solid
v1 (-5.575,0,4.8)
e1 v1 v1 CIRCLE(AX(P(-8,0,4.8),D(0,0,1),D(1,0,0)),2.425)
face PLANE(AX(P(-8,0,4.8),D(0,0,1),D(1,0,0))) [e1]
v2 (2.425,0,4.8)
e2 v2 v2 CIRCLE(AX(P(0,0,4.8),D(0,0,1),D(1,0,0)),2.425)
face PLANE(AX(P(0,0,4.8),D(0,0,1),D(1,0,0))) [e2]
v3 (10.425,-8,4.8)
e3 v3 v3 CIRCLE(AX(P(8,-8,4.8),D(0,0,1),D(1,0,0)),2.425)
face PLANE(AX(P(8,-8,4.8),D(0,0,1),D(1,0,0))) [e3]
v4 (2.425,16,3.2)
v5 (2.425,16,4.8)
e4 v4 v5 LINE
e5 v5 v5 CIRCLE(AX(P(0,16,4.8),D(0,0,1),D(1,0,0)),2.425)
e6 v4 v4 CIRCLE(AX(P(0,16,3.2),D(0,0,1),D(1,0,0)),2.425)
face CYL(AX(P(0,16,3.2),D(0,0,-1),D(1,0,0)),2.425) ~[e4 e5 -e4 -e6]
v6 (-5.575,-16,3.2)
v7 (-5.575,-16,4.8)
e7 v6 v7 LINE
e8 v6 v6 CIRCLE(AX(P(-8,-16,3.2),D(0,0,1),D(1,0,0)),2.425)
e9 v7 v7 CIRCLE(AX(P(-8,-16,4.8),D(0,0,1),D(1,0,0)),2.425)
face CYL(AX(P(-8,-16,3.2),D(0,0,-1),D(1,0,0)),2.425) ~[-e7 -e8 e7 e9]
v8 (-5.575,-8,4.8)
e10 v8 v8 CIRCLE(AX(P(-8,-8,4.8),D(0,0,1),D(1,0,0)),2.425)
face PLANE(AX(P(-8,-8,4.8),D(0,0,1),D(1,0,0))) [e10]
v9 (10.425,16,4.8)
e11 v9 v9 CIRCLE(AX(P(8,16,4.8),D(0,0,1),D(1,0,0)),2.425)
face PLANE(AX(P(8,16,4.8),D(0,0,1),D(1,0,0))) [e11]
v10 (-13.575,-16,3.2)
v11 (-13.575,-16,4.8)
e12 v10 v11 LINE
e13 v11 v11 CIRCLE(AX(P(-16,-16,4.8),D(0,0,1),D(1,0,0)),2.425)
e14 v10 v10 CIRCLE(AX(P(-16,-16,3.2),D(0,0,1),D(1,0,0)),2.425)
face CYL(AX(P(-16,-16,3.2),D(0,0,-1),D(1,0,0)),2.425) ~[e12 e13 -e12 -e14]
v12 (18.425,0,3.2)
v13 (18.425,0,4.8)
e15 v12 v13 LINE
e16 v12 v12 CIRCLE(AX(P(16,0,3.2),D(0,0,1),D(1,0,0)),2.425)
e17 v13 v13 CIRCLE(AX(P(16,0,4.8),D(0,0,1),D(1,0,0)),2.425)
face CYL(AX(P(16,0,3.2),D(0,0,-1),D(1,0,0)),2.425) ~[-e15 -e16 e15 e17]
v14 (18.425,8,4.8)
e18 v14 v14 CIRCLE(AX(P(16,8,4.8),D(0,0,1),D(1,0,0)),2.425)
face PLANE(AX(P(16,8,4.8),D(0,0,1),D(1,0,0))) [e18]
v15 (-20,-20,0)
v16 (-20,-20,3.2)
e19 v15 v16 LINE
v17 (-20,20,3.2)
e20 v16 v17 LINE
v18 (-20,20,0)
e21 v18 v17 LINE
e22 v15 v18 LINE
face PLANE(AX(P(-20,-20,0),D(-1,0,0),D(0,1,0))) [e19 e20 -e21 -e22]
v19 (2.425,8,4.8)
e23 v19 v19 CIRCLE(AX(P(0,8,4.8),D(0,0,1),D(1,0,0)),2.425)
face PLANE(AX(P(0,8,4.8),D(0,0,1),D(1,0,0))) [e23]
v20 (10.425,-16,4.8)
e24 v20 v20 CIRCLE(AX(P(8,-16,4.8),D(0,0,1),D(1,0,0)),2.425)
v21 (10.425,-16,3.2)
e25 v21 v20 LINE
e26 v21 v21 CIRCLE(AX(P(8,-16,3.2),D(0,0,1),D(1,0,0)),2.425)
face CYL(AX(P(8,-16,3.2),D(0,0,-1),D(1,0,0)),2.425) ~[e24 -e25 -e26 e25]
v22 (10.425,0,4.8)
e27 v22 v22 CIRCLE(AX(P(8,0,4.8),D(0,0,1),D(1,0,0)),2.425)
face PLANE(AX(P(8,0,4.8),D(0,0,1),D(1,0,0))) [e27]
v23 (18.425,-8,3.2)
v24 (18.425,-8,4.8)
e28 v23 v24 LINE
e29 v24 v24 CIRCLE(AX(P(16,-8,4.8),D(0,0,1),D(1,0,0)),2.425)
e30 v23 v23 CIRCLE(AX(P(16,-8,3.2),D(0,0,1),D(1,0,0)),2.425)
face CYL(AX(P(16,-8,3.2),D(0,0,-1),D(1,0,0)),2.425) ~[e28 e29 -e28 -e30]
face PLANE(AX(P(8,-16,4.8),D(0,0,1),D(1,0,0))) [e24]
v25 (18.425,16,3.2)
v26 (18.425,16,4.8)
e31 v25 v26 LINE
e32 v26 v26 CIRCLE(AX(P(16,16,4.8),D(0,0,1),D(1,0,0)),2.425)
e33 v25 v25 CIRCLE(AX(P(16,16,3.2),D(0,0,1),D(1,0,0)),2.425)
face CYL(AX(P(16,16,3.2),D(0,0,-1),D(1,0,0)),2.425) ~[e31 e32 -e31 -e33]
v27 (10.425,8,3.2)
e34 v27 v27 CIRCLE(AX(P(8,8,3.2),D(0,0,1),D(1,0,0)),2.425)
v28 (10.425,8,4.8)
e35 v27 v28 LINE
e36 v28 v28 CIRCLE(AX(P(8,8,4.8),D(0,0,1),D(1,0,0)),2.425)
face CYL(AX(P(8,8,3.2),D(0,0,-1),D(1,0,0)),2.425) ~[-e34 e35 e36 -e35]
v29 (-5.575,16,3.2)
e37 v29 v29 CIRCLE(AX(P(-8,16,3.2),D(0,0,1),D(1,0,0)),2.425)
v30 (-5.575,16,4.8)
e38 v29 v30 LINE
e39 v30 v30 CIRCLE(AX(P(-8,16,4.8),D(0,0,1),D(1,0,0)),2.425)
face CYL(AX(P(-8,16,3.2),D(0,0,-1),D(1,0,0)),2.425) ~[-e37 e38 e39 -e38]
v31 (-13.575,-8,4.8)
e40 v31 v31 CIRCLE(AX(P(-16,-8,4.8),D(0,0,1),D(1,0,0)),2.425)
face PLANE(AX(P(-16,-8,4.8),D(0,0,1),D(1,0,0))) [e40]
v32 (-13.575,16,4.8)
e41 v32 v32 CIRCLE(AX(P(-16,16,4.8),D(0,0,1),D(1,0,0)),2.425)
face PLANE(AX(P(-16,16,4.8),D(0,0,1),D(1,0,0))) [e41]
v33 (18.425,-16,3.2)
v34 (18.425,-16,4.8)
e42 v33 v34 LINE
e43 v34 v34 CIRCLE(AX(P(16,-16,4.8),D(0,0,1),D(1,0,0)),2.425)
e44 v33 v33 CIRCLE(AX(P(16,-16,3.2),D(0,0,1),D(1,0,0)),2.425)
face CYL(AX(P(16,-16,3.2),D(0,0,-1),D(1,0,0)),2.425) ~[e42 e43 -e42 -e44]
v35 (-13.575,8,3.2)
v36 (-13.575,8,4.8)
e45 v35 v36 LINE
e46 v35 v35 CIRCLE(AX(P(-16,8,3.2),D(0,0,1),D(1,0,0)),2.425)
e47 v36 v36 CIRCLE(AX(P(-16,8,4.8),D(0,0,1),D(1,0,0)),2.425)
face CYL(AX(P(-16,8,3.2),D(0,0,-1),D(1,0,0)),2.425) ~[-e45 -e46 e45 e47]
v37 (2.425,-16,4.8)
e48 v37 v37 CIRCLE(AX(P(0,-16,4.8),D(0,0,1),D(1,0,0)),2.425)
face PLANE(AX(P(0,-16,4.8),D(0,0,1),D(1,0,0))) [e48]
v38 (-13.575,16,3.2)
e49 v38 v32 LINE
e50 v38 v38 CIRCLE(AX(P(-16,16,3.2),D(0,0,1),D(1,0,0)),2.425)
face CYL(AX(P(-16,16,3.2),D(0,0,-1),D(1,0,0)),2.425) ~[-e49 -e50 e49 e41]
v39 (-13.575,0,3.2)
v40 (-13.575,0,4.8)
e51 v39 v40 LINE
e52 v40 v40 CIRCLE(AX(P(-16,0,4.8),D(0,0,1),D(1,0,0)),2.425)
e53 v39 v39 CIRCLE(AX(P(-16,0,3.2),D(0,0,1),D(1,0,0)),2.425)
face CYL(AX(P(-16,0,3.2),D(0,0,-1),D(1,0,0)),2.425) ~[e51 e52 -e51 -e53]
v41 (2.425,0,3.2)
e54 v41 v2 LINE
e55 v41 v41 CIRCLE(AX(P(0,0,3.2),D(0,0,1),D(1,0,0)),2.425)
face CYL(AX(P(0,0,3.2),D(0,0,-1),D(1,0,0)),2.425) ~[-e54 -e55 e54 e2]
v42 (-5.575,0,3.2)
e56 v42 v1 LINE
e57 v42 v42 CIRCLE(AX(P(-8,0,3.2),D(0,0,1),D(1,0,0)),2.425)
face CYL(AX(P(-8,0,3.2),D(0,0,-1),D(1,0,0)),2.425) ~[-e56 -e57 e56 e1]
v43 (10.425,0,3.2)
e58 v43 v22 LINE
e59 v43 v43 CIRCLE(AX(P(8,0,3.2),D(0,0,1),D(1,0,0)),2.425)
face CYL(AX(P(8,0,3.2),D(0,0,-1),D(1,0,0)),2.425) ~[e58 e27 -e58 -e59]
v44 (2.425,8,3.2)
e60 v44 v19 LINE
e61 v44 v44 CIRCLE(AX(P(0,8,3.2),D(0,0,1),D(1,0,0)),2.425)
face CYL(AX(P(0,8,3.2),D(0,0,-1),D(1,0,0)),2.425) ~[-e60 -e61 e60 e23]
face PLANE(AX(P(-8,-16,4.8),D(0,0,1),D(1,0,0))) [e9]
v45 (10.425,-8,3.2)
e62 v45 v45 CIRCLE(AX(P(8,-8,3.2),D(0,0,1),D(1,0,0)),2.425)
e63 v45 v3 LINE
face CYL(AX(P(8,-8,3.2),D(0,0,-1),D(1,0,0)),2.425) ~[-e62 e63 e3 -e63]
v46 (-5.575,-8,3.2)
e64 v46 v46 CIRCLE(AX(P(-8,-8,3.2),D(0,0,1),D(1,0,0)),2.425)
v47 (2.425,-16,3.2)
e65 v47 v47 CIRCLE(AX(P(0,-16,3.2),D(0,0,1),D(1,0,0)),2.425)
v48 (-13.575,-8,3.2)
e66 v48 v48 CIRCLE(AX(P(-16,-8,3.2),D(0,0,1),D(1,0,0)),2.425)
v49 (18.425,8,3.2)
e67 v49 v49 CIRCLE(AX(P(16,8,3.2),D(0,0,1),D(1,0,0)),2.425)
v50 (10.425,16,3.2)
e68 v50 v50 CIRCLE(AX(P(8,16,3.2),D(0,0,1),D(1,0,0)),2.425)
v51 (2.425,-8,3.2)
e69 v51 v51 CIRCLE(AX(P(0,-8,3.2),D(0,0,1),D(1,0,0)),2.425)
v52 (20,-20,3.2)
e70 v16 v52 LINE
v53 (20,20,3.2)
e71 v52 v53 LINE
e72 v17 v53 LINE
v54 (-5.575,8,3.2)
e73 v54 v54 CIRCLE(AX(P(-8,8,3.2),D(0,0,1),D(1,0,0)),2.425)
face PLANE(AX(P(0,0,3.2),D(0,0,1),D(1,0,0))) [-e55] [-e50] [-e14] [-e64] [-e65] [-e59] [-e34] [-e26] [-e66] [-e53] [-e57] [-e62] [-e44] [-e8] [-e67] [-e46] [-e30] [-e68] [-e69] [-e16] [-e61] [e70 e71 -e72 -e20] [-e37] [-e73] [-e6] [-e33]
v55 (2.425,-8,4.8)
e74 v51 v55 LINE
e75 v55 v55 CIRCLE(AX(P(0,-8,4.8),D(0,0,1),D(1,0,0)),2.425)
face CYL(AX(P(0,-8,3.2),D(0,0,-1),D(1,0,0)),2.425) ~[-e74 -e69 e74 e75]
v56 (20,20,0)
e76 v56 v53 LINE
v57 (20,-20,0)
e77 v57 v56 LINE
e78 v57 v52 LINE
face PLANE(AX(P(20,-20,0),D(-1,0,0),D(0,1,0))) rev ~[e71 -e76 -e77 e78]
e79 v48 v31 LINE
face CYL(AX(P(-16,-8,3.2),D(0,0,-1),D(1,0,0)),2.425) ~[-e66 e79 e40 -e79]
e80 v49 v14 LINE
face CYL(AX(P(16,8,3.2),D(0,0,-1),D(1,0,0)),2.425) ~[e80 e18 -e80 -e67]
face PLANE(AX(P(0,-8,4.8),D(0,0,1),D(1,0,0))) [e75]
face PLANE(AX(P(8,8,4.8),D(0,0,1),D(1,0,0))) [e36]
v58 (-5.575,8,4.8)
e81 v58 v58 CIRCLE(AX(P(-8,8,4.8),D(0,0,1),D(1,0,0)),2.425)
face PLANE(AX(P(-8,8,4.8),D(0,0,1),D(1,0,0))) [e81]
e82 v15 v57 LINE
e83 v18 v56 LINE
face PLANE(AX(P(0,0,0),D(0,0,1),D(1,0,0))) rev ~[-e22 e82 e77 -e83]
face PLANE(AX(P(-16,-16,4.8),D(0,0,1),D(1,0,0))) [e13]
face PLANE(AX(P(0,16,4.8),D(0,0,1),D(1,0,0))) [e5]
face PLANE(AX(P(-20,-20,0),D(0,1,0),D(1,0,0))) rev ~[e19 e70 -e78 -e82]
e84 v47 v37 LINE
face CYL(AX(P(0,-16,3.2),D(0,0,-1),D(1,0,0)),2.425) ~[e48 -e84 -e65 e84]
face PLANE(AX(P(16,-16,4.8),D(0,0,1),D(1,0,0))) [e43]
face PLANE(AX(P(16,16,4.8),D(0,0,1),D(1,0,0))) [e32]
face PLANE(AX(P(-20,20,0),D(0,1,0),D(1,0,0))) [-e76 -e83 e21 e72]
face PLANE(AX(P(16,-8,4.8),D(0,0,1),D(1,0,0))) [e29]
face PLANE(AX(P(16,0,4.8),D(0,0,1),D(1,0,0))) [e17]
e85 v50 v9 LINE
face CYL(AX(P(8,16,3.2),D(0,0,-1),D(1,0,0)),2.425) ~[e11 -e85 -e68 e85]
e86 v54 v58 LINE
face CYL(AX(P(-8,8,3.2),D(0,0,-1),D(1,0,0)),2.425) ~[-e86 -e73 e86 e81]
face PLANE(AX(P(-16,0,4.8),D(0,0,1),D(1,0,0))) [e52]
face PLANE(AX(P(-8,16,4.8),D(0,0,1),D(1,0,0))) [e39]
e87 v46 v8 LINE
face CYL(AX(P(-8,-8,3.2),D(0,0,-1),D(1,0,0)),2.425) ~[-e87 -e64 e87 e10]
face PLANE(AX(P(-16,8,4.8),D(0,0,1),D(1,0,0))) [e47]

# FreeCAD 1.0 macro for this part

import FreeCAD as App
import Part
import Sketcher
from FreeCAD import Vector


def add_polygon(sketch, points):
    """Adds a closed chain of lines whose ends are joined by coincident constraints."""
    first, n = sketch.GeometryCount, len(points)
    for a, b in zip(points, points[1:] + points[:1]):
        sketch.addGeometry(Part.LineSegment(App.Vector(*a, 0), App.Vector(*b, 0)), False)
    for i in range(n):
        sketch.addConstraint(Sketcher.Constraint("Coincident", first + i, 2, first + (i + 1) % n, 1))

doc = App.newDocument("Part")
body = doc.addObject("PartDesign::Body", "Body")

sketch1 = body.newObject("Sketcher::SketchObject", "Sketch")
sketch1.AttachmentSupport = (doc.getObject("XY_Plane"), [""])
sketch1.MapMode = "FlatFace"
add_polygon(sketch1, [(-20, 20), (-20, -20), (20, -20), (20, 20)])
sketch1.addConstraint([
    Sketcher.Constraint("Vertical", 0),
    Sketcher.Constraint("Horizontal", 1),
    Sketcher.Constraint("Vertical", 2),
    Sketcher.Constraint("Horizontal", 3),
    Sketcher.Constraint("Symmetric", 0, 2, 2, 2, -1, 1),
    Sketcher.Constraint("Equal", 3, 0),
    Sketcher.Constraint("DistanceX", 1, 1, 1, 2, 40.0),
])
pad1 = body.newObject("PartDesign::Pad", "Pad")
pad1.Profile = sketch1
pad1.Length = 3.2

sketch2 = body.newObject("Sketcher::SketchObject", "Sketch001")
sketch2.AttachmentSupport = (doc.getObject("XY_Plane"), [""])
sketch2.MapMode = "FlatFace"
sketch2.AttachmentOffset = App.Placement(Vector(0, 0, 3.2), App.Rotation())
sketch2.addGeometry([
    Part.Circle(Vector(-16, -16, 0), Vector(0, 0, 1), 2.4),
    Part.Circle(Vector(-16, -8, 0), Vector(0, 0, 1), 2.4),
    Part.Circle(Vector(-16, 0, 0), Vector(0, 0, 1), 2.4),
    Part.Circle(Vector(-16, 8, 0), Vector(0, 0, 1), 2.4),
    Part.Circle(Vector(-16, 16, 0), Vector(0, 0, 1), 2.4),
    Part.Circle(Vector(-8, -16, 0), Vector(0, 0, 1), 2.4),
    Part.Circle(Vector(-8, -8, 0), Vector(0, 0, 1), 2.4),
    Part.Circle(Vector(-8, 0, 0), Vector(0, 0, 1), 2.4),
    Part.Circle(Vector(-8, 8, 0), Vector(0, 0, 1), 2.4),
    Part.Circle(Vector(-8, 16, 0), Vector(0, 0, 1), 2.4),
    Part.Circle(Vector(0, -16, 0), Vector(0, 0, 1), 2.4),
    Part.Circle(Vector(0, -8, 0), Vector(0, 0, 1), 2.4),
    Part.Circle(Vector(0, 0, 0), Vector(0, 0, 1), 2.4),
    Part.Circle(Vector(0, 8, 0), Vector(0, 0, 1), 2.4),
    Part.Circle(Vector(0, 16, 0), Vector(0, 0, 1), 2.4),
    Part.Circle(Vector(8, -16, 0), Vector(0, 0, 1), 2.4),
    Part.Circle(Vector(8, -8, 0), Vector(0, 0, 1), 2.4),
    Part.Circle(Vector(8, 0, 0), Vector(0, 0, 1), 2.4),
    Part.Circle(Vector(8, 8, 0), Vector(0, 0, 1), 2.4),
    Part.Circle(Vector(8, 16, 0), Vector(0, 0, 1), 2.4),
    Part.Circle(Vector(16, -16, 0), Vector(0, 0, 1), 2.4),
    Part.Circle(Vector(16, -8, 0), Vector(0, 0, 1), 2.4),
    Part.Circle(Vector(16, 0, 0), Vector(0, 0, 1), 2.4),
    Part.Circle(Vector(16, 8, 0), Vector(0, 0, 1), 2.4),
    Part.Circle(Vector(16, 16, 0), Vector(0, 0, 1), 2.4),
], False)
sketch2.addConstraint([
    Sketcher.Constraint("Coincident", 12, 3, -1, 1),
    Sketcher.Constraint("Equal", 0, 1),
    Sketcher.Constraint("Equal", 1, 2),
    Sketcher.Constraint("Equal", 2, 3),
    Sketcher.Constraint("Equal", 3, 4),
    Sketcher.Constraint("Equal", 4, 5),
    Sketcher.Constraint("Equal", 5, 6),
    Sketcher.Constraint("Equal", 6, 7),
    Sketcher.Constraint("Equal", 7, 8),
    Sketcher.Constraint("Equal", 8, 9),
    Sketcher.Constraint("Equal", 9, 10),
    Sketcher.Constraint("Equal", 10, 11),
    Sketcher.Constraint("Equal", 11, 12),
    Sketcher.Constraint("Equal", 12, 13),
    Sketcher.Constraint("Equal", 13, 14),
    Sketcher.Constraint("Equal", 14, 15),
    Sketcher.Constraint("Equal", 15, 16),
    Sketcher.Constraint("Equal", 16, 17),
    Sketcher.Constraint("Equal", 17, 18),
    Sketcher.Constraint("Equal", 18, 19),
    Sketcher.Constraint("Equal", 19, 20),
    Sketcher.Constraint("Equal", 20, 21),
    Sketcher.Constraint("Equal", 21, 22),
    Sketcher.Constraint("Equal", 22, 23),
    Sketcher.Constraint("Equal", 23, 24),
    Sketcher.Constraint("Symmetric", 11, 3, 13, 3, -1, 1),
    Sketcher.Constraint("Symmetric", 10, 3, 14, 3, -1, 1),
    Sketcher.Constraint("Symmetric", 9, 3, 15, 3, -1, 1),
    Sketcher.Constraint("Symmetric", 8, 3, 16, 3, -1, 1),
    Sketcher.Constraint("Symmetric", 7, 3, 17, 3, -1, 1),
    Sketcher.Constraint("Symmetric", 6, 3, 18, 3, -1, 1),
    Sketcher.Constraint("Symmetric", 5, 3, 19, 3, -1, 1),
    Sketcher.Constraint("Symmetric", 4, 3, 20, 3, -1, 1),
    Sketcher.Constraint("Symmetric", 3, 3, 21, 3, -1, 1),
    Sketcher.Constraint("Symmetric", 2, 3, 22, 3, -1, 1),
    Sketcher.Constraint("Symmetric", 1, 3, 23, 3, -1, 1),
    Sketcher.Constraint("Symmetric", 0, 3, 24, 3, -1, 1),
    Sketcher.Constraint("Symmetric", 5, 3, 15, 3, -2),
    Sketcher.Constraint("Symmetric", 6, 3, 16, 3, -2),
    Sketcher.Constraint("Symmetric", 0, 3, 20, 3, -2),
    Sketcher.Constraint("Symmetric", 1, 3, 21, 3, -2),
    Sketcher.Constraint("PointOnObject", 2, 3, -1),
    Sketcher.Constraint("PointOnObject", 7, 3, -1),
    Sketcher.Constraint("PointOnObject", 10, 3, -2),
    Sketcher.Constraint("PointOnObject", 11, 3, -2),
    Sketcher.Constraint("Horizontal", 0, 3, 5, 3),
    Sketcher.Constraint("Horizontal", 1, 3, 6, 3),
    Sketcher.Constraint("Horizontal", 5, 3, 10, 3),
    Sketcher.Constraint("Horizontal", 6, 3, 11, 3),
    Sketcher.Constraint("Vertical", 0, 3, 1, 3),
    Sketcher.Constraint("Vertical", 1, 3, 2, 3),
    Sketcher.Constraint("Vertical", 5, 3, 6, 3),
    Sketcher.Constraint("Vertical", 6, 3, 7, 3),
    Sketcher.Constraint("Diameter", 0, 4.85),
    Sketcher.Constraint("DistanceX", 0, 3, -1, 1, 16.0),
    Sketcher.Constraint("DistanceY", 0, 3, -1, 1, 16.0),
    Sketcher.Constraint("DistanceY", 1, 3, -1, 1, 8.0),
    Sketcher.Constraint("DistanceX", 5, 3, -1, 1, 8.0),
])
pad2 = body.newObject("PartDesign::Pad", "Pad001")
pad2.Profile = sketch2
pad2.Length = 1.6

doc.recompute()
